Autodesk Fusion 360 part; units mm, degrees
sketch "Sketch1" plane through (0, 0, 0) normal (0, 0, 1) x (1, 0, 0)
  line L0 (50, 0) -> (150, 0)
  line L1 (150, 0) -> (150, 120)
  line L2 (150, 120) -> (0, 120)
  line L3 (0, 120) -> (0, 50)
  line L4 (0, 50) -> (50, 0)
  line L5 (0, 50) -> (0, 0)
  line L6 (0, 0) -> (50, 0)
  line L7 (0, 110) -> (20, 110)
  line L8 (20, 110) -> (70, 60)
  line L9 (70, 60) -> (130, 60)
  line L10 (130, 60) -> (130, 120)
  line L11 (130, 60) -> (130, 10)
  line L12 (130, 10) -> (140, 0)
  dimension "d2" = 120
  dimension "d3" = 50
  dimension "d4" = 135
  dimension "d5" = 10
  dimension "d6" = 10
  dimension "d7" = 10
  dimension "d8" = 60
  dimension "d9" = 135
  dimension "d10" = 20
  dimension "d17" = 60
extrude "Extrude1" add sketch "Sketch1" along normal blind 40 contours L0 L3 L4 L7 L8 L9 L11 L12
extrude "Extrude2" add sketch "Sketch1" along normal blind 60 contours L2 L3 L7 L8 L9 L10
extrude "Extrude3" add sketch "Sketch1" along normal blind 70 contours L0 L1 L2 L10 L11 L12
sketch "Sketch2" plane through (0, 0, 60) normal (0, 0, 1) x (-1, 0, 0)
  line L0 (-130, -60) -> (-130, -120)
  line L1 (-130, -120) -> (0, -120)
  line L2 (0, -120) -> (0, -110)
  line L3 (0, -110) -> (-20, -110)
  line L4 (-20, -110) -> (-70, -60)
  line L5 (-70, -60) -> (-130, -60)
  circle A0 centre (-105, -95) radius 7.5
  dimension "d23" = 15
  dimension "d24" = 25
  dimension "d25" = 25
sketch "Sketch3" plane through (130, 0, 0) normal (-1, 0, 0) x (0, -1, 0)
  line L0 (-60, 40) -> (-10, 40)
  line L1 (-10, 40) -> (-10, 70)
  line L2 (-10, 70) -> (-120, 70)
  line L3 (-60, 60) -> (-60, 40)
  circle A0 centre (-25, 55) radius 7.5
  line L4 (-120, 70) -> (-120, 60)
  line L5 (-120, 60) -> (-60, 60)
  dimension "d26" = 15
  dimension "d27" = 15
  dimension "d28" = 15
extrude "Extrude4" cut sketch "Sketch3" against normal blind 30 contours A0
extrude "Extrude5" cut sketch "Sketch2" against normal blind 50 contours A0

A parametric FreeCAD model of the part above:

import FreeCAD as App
import Part
import Sketcher

V = App.Vector
Q = App.Units.Quantity


def add_polygon(sketch, points):
    """Adds a closed chain of lines whose ends are joined by coincident constraints."""
    first, n = sketch.GeometryCount, len(points)
    for a, b in zip(points, points[1:] + points[:1]):
        sketch.addGeometry(Part.LineSegment(App.Vector(*a, 0), App.Vector(*b, 0)), False)
    for i in range(n):
        sketch.addConstraint(Sketcher.Constraint("Coincident", first + i, 2, first + (i + 1) % n, 1))

doc = App.newDocument("Part")
body = doc.addObject("PartDesign::Body", "Body")

sketch1 = body.newObject("Sketcher::SketchObject", "Sketch")
sketch1.AttachmentSupport = (doc.getObject("XY_Plane"), [""])
sketch1.MapMode = "FlatFace"
add_polygon(sketch1, [(0, 50), (50, 0), (140, 0), (130, 10), (130, 60), (70, 60), (20, 110), (0, 110)])
sketch1.addConstraint(Sketcher.Constraint("Horizontal", 1))
sketch1.addConstraint(Sketcher.Constraint("Vertical", 3))
sketch1.addConstraint(Sketcher.Constraint("Horizontal", 4))
sketch1.addConstraint(Sketcher.Constraint("Horizontal", 6))
sketch1.addConstraint(Sketcher.Constraint("Vertical", 7))
sketch1.addConstraint(Sketcher.Constraint("PointOnObject", 0, 2, -1))
sketch1.addConstraint(Sketcher.Constraint("PointOnObject", 6, 2, -2))
sketch1.addConstraint(Sketcher.Constraint("Parallel", 0, 2))
sketch1.addConstraint(Sketcher.Constraint("Parallel", 2, 5))
sketch1.addConstraint(Sketcher.Constraint("Equal", 4, 7))
sketch1.addConstraint(Sketcher.Constraint("Equal", 0, 5))
sketch1.addConstraint(Sketcher.Constraint("DistanceX", 4, 2, 4, 1, Q("60 mm")))
sketch1.addConstraint(Sketcher.Constraint("DistanceX", 6, 2, 6, 1, Q("20 mm")))
sketch1.addConstraint(Sketcher.Constraint("DistanceY", 3, 1, 3, 2, Q("50 mm")))
sketch1.addConstraint(Sketcher.Constraint("Angle", 2, Q("135 deg")))
sketch1.addConstraint(Sketcher.Constraint("DistanceX", -1, 1, 0, 2, Q("50 mm")))
pad1 = body.newObject("PartDesign::Pad", "Pad")
pad1.Profile = sketch1
pad1.Length = 40

sketch2 = body.newObject("Sketcher::SketchObject", "Sketch001")
sketch2.AttachmentSupport = (doc.getObject("XY_Plane"), [""])
sketch2.MapMode = "FlatFace"
add_polygon(sketch2, [(0, 120), (0, 110), (20, 110), (70, 60), (130, 60), (130, 120)])
sketch2.addConstraint(Sketcher.Constraint("Vertical", 0))
sketch2.addConstraint(Sketcher.Constraint("Horizontal", 1))
sketch2.addConstraint(Sketcher.Constraint("Horizontal", 3))
sketch2.addConstraint(Sketcher.Constraint("Vertical", 4))
sketch2.addConstraint(Sketcher.Constraint("Horizontal", 5))
sketch2.addConstraint(Sketcher.Constraint("PointOnObject", 0, 2, -2))
sketch2.addConstraint(Sketcher.Constraint("Equal", 3, 4))
sketch2.addConstraint(Sketcher.Constraint("DistanceX", 1, 1, 1, 2, Q("20 mm")))
sketch2.addConstraint(Sketcher.Constraint("DistanceX", 3, 1, 3, 2, Q("60 mm")))
sketch2.addConstraint(Sketcher.Constraint("DistanceY", 0, 2, 0, 1, Q("10 mm")))
sketch2.addConstraint(Sketcher.Constraint("DistanceY", -1, 1, 2, 2, Q("60 mm")))
sketch2.addConstraint(Sketcher.Constraint("DistanceX", 1, 2, 2, 2, Q("50 mm")))
pad2 = body.newObject("PartDesign::Pad", "Pad001")
pad2.Profile = sketch2
pad2.Length = 60

sketch3 = body.newObject("Sketcher::SketchObject", "Sketch002")
sketch3.AttachmentSupport = (doc.getObject("XY_Plane"), [""])
sketch3.MapMode = "FlatFace"
add_polygon(sketch3, [(130, 10), (140, 0), (150, 0), (150, 120), (130, 120)])
sketch3.addConstraint(Sketcher.Constraint("Horizontal", 1))
sketch3.addConstraint(Sketcher.Constraint("Vertical", 2))
sketch3.addConstraint(Sketcher.Constraint("Horizontal", 3))
sketch3.addConstraint(Sketcher.Constraint("Vertical", 4))
sketch3.addConstraint(Sketcher.Constraint("PointOnObject", 0, 2, -1))
sketch3.addConstraint(Sketcher.Constraint("DistanceX", 1, 1, 1, 2, Q("10 mm")))
sketch3.addConstraint(Sketcher.Constraint("DistanceX", 3, 2, 3, 1, Q("20 mm")))
sketch3.addConstraint(Sketcher.Constraint("DistanceY", 2, 1, 2, 2, Q("120 mm")))
sketch3.addConstraint(Sketcher.Constraint("DistanceY", -1, 1, 4, 2, Q("10 mm")))
sketch3.addConstraint(Sketcher.Constraint("DistanceX", -1, 1, 0, 2, Q("140 mm")))
pad3 = body.newObject("PartDesign::Pad", "Pad002")
pad3.Profile = sketch3
pad3.Length = 70

sketch4 = body.newObject("Sketcher::SketchObject", "Sketch003")
sketch4.AttachmentSupport = (doc.getObject("YZ_Plane"), [""])
sketch4.MapMode = "FlatFace"
sketch4.AttachmentOffset = App.Placement(V(0, 0, 130), App.Rotation())
sketch4.addGeometry(Part.Circle(V(25, 55, 0), V(0, 0, 1), 8), False)
sketch4.addConstraint(Sketcher.Constraint("Diameter", 0, Q("15 mm")))
sketch4.addConstraint(Sketcher.Constraint("DistanceX", -1, 1, 0, 3, Q("25 mm")))
sketch4.addConstraint(Sketcher.Constraint("DistanceY", -1, 1, 0, 3, Q("55 mm")))
pocket1 = body.newObject("PartDesign::Pocket", "Pocket")
pocket1.Profile = sketch4
pocket1.Length = 30
pocket1.Reversed = True

sketch5 = body.newObject("Sketcher::SketchObject", "Sketch004")
sketch5.AttachmentSupport = (doc.getObject("XY_Plane"), [""])
sketch5.MapMode = "FlatFace"
sketch5.AttachmentOffset = App.Placement(V(0, 0, 60), App.Rotation())
sketch5.addGeometry(Part.Circle(V(105, 95, 0), V(0, 0, 1), 8), False)
sketch5.addConstraint(Sketcher.Constraint("Diameter", 0, Q("15 mm")))
sketch5.addConstraint(Sketcher.Constraint("DistanceX", -1, 1, 0, 3, Q("105 mm")))
sketch5.addConstraint(Sketcher.Constraint("DistanceY", -1, 1, 0, 3, Q("95 mm")))
pocket2 = body.newObject("PartDesign::Pocket", "Pocket001")
pocket2.Profile = sketch5
pocket2.Length = 50

doc.recompute()
